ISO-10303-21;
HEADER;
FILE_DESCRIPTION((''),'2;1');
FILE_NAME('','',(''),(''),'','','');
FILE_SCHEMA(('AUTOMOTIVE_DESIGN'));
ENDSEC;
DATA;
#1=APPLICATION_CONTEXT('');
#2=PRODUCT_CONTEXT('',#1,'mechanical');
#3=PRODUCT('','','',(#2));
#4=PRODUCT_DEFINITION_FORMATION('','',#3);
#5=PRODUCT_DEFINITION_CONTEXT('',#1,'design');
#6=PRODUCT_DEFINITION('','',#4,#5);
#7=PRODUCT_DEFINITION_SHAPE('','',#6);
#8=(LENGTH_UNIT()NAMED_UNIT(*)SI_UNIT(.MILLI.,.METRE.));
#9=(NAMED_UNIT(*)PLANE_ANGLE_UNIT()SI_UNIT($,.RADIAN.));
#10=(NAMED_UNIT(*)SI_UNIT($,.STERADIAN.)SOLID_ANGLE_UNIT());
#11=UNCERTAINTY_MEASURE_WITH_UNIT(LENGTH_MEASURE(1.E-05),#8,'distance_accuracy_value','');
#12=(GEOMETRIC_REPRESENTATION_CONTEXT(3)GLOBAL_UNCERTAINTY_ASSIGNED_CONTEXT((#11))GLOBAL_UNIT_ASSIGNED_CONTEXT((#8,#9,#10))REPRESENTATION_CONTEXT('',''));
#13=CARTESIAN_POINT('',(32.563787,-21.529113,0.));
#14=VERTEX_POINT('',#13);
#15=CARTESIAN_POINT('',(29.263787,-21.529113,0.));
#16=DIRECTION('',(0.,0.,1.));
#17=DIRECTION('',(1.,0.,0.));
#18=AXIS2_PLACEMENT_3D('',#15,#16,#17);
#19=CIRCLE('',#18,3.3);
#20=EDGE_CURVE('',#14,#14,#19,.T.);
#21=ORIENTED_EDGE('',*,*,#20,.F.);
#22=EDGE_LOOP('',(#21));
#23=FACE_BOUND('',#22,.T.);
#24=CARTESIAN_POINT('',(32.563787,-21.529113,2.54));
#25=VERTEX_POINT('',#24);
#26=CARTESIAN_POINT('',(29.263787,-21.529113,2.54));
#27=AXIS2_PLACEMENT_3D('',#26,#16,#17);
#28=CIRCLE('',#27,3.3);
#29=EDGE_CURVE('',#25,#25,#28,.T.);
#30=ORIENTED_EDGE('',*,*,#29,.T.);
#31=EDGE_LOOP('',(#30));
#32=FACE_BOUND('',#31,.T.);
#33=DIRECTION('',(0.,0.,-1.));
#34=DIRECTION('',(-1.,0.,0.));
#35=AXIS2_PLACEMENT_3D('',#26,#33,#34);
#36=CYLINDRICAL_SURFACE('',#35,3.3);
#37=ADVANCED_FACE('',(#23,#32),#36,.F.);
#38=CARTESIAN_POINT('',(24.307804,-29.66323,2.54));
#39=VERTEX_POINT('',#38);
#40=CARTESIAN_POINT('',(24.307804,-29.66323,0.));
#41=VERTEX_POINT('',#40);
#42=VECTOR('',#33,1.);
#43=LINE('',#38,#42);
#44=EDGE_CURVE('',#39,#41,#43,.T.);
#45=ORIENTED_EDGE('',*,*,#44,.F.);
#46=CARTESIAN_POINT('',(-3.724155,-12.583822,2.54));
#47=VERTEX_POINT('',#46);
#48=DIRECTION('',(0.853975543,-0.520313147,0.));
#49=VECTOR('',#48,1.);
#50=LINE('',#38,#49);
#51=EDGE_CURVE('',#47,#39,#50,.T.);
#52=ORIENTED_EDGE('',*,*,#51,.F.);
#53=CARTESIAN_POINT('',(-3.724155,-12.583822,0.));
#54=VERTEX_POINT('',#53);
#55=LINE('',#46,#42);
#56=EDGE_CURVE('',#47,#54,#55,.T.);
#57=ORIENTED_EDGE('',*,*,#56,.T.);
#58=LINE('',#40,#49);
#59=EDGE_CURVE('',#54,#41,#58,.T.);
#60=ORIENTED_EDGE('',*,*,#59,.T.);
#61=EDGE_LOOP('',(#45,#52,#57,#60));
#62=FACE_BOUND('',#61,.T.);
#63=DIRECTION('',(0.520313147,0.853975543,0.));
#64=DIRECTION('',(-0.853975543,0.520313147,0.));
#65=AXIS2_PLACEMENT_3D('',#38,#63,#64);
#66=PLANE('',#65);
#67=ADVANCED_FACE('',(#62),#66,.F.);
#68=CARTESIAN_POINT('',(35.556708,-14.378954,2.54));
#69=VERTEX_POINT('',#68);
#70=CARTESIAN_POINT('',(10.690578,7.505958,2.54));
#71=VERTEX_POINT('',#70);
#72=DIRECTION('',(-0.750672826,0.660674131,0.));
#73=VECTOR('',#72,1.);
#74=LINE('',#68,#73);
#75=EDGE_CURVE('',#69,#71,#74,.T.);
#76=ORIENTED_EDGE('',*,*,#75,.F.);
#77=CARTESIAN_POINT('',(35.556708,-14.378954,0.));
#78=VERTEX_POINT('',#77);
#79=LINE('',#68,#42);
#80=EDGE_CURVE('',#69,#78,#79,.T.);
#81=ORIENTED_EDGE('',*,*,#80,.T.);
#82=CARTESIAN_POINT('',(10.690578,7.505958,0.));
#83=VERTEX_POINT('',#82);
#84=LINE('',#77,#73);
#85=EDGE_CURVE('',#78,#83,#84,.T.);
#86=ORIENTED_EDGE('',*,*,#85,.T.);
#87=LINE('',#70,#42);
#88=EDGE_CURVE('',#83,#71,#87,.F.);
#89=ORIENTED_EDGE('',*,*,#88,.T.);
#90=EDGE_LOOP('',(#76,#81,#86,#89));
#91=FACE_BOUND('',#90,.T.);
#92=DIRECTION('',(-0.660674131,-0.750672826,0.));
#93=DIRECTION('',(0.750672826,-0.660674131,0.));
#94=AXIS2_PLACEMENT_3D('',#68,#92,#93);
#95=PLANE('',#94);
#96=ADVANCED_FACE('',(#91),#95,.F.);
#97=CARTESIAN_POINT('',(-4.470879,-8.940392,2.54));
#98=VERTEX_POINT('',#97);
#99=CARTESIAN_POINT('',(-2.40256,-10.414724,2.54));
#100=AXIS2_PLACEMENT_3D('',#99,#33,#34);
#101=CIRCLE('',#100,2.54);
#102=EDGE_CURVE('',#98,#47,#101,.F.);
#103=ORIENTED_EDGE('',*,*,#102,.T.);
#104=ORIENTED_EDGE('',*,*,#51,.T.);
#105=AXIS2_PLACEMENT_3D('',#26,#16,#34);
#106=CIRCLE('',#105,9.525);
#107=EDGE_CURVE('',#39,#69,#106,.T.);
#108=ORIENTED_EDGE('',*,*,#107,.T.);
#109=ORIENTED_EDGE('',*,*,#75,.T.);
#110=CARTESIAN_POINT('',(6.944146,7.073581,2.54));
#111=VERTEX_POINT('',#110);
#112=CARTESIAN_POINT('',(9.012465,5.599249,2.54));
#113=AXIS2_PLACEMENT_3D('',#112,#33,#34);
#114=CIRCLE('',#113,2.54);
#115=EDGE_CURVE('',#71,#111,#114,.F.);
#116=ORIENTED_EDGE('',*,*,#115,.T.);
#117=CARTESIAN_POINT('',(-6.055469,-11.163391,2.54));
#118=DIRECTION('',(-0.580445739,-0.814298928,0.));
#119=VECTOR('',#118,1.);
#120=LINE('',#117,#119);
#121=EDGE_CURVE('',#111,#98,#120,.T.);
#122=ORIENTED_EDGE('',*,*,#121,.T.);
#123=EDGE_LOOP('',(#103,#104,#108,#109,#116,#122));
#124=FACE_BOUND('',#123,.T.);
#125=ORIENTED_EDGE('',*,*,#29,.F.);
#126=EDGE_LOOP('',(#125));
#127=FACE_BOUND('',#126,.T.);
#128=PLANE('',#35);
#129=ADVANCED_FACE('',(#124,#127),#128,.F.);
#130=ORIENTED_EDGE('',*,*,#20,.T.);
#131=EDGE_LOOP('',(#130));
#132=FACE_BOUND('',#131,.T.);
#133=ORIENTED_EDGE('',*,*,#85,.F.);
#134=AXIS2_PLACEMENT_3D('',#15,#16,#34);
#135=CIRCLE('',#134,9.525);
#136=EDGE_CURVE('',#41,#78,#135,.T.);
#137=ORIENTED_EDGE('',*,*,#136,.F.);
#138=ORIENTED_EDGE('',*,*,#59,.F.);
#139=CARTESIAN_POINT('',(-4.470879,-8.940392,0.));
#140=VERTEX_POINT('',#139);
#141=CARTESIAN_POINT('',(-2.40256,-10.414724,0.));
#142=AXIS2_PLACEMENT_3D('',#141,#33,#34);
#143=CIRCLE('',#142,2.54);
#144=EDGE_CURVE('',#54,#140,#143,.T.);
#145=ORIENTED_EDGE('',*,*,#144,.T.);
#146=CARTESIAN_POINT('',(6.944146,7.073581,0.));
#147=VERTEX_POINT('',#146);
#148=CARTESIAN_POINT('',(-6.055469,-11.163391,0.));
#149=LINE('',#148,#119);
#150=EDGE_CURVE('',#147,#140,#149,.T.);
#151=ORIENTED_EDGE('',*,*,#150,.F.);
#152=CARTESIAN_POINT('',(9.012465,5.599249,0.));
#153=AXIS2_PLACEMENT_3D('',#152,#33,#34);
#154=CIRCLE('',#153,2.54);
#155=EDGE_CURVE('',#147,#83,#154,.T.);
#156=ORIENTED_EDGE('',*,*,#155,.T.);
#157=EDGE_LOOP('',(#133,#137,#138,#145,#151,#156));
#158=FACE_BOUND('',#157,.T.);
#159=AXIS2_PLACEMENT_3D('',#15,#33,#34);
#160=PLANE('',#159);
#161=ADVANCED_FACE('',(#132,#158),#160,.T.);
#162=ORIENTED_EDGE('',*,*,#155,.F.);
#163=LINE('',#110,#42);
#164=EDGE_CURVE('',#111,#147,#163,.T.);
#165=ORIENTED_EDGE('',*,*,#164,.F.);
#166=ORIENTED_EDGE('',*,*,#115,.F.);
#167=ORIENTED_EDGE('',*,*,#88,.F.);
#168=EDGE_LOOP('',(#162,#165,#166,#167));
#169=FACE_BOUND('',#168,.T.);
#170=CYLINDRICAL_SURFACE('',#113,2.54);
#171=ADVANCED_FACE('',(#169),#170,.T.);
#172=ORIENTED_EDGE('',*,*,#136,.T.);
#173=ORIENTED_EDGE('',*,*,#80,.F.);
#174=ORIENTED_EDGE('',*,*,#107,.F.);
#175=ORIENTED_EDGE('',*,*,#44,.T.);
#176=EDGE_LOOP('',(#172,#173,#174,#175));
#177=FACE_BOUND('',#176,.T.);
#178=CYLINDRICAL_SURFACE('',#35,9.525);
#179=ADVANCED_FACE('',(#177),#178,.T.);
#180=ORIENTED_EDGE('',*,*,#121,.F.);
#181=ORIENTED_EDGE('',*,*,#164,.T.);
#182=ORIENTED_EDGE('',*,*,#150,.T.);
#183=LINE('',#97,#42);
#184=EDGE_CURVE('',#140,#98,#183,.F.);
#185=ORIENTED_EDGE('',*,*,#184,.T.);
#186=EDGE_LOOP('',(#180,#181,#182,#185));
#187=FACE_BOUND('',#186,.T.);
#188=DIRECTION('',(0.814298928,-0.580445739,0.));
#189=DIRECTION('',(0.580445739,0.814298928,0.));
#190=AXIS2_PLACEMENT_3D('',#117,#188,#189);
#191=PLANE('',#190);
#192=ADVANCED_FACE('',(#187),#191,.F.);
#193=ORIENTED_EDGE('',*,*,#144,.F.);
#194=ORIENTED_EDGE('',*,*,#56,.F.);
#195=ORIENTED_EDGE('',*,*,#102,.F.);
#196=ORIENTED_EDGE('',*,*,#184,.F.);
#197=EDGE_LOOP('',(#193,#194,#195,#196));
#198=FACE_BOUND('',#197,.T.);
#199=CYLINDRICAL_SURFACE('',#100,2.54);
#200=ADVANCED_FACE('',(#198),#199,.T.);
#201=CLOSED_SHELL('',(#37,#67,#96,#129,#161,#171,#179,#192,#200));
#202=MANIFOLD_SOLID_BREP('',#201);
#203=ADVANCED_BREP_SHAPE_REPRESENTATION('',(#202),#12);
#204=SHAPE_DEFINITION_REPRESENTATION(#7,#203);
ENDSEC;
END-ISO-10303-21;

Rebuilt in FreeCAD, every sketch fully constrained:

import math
import FreeCAD as App
import Part
import Sketcher
Q = App.Units.Quantity


def edges_at(feature, points):
    """Names of the edges that pass closest to the given points."""
    edges = feature.Shape.Edges
    near = lambda p: min(range(len(edges)), key=lambda i: edges[i].distToShape(Part.Vertex(*p))[0])
    return sorted({f"Edge{near(p) + 1}" for p in points})

doc = App.newDocument("Part")
body = doc.addObject("PartDesign::Body", "Body")

# Sketch on XY plane
sketch1 = body.newObject("Sketcher::SketchObject", "Sketch")
sketch1.AttachmentSupport = (doc.getObject("XY_Plane"), [""])
sketch1.MapMode = "FlatFace"
sketch1.addGeometry(Part.LineSegment(App.Vector(-6.1, -11.2, 0), App.Vector(24.3, -29.7, 0)), False)
sketch1.addGeometry(Part.ArcOfCircle(Part.Circle(App.Vector(29.3, -21.5, 0), App.Vector(0, 0, 1), 9.5), math.radians(-121), math.radians(49)), False)
sketch1.addGeometry(Part.LineSegment(App.Vector(35.6, -14.4, 0), App.Vector(8.6, 9.4, 0)), False)
sketch1.addGeometry(Part.LineSegment(App.Vector(8.6, 9.4, 0), App.Vector(-6.1, -11.2, 0)), False)
sketch1.addGeometry(Part.Circle(App.Vector(29.3, -21.5, 0), App.Vector(0, 0, 1), 3.3), False)
sketch1.addConstraint(Sketcher.Constraint("Tangent", 0, 2, 1, 1))
sketch1.addConstraint(Sketcher.Constraint("Tangent", 1, 2, 2, 1))
sketch1.addConstraint(Sketcher.Constraint("Coincident", 2, 2, 3, 1))
sketch1.addConstraint(Sketcher.Constraint("Coincident", 3, 2, 0, 1))
sketch1.addConstraint(Sketcher.Constraint("Coincident", 4, 3, 1, 3))
sketch1.addConstraint(Sketcher.Constraint("Radius", 1, Q("0.375 in")))
sketch1.addConstraint(Sketcher.Constraint("Diameter", 4, Q("6.6 mm")))
sketch1.addConstraint(Sketcher.Constraint("DistanceX", -1, 1, 0, 2, Q("0.9570002 in")))
sketch1.addConstraint(Sketcher.Constraint("DistanceY", 0, 2, -1, 1, Q("29.66323 mm")))
sketch1.addConstraint(Sketcher.Constraint("DistanceX", -1, 1, 2, 2, Q("8.57781 mm")))
sketch1.addConstraint(Sketcher.Constraint("DistanceX", 3, 2, -1, 1, Q("6.055469 mm")))
sketch1.addConstraint(Sketcher.Constraint("DistanceY", 3, 2, -1, 1, Q("11.163391 mm")))
sketch1.addConstraint(Sketcher.Constraint("DistanceX", 1, 3, 1, 2, Q("6.292921 mm")))
pad1 = body.newObject("PartDesign::Pad", "Pad")
pad1.Profile = sketch1
pad1.Length = Q("0.1 in")
doc.recompute()

fillet = body.newObject("PartDesign::Fillet", "Fillet")
fillet.Base = (pad1, edges_at(pad1, [(-6.055, -11.163, 1.27)]))
fillet.Radius = Q("0.1 in")
doc.recompute()

fillet2 = body.newObject("PartDesign::Fillet", "Fillet001")
fillet2.Base = (fillet, edges_at(fillet, [(8.578, 9.365, 1.27)]))
fillet2.Radius = Q("0.1 in")

doc.recompute()
